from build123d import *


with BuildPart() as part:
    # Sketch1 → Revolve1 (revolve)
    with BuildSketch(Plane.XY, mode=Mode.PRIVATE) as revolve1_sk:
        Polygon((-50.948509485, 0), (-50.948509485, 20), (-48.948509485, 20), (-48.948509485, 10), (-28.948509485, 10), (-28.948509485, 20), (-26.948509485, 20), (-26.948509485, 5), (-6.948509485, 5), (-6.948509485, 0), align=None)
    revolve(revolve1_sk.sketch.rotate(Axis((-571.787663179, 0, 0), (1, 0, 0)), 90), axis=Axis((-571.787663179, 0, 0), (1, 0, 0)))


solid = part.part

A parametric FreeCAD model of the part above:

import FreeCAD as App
import Part
import Sketcher
from FreeCAD import Vector


def add_polygon(sketch, points):
    """Adds a closed chain of lines whose ends are joined by coincident constraints."""
    first, n = sketch.GeometryCount, len(points)
    for a, b in zip(points, points[1:] + points[:1]):
        sketch.addGeometry(Part.LineSegment(App.Vector(*a, 0), App.Vector(*b, 0)), False)
    for i in range(n):
        sketch.addConstraint(Sketcher.Constraint("Coincident", first + i, 2, first + (i + 1) % n, 1))

doc = App.newDocument("Part")
body = doc.addObject("PartDesign::Body", "Body")

sketch1 = body.newObject("Sketcher::SketchObject", "Sketch")
sketch1.AttachmentSupport = (doc.getObject("XY_Plane"), [""])
sketch1.MapMode = "FlatFace"
add_polygon(sketch1, [(-50.9, 20), (-50.9, 0), (-6.9, 0), (-6.9, 5), (-26.9, 5), (-26.9, 20), (-28.9, 20), (-28.9, 10), (-48.9, 10), (-48.9, 20)])
sketch1.addConstraint([
    Sketcher.Constraint("Vertical", 0),
    Sketcher.Constraint("Horizontal", 1),
    Sketcher.Constraint("Vertical", 2),
    Sketcher.Constraint("Horizontal", 3),
    Sketcher.Constraint("Vertical", 4),
    Sketcher.Constraint("Horizontal", 5),
    Sketcher.Constraint("Vertical", 6),
    Sketcher.Constraint("Horizontal", 7),
    Sketcher.Constraint("Vertical", 8),
    Sketcher.Constraint("Horizontal", 9),
    Sketcher.Constraint("PointOnObject", 0, 2, -1),
    Sketcher.Constraint("Horizontal", 5, 2, 8, 2),
    Sketcher.Constraint("Equal", 3, 7),
    Sketcher.Constraint("Equal", 5, 9),
    Sketcher.Constraint("Equal", 7, 0),
    Sketcher.Constraint("DistanceX", 1, 1, 1, 2, 44.0),
    Sketcher.Constraint("DistanceX", 3, 2, 3, 1, 20.0),
    Sketcher.Constraint("DistanceY", 2, 1, 2, 2, 5.0),
    Sketcher.Constraint("DistanceY", 6, 2, 6, 1, 10.0),
    Sketcher.Constraint("DistanceX", 0, 2, -1, 1, 50.948509),
])
revolution = body.newObject("PartDesign::Revolution", "Revolution")
revolution.Profile = sketch1
revolution.ReferenceAxis = (sketch1, ["H_Axis"])
revolution.Angle = 360

doc.recompute()
